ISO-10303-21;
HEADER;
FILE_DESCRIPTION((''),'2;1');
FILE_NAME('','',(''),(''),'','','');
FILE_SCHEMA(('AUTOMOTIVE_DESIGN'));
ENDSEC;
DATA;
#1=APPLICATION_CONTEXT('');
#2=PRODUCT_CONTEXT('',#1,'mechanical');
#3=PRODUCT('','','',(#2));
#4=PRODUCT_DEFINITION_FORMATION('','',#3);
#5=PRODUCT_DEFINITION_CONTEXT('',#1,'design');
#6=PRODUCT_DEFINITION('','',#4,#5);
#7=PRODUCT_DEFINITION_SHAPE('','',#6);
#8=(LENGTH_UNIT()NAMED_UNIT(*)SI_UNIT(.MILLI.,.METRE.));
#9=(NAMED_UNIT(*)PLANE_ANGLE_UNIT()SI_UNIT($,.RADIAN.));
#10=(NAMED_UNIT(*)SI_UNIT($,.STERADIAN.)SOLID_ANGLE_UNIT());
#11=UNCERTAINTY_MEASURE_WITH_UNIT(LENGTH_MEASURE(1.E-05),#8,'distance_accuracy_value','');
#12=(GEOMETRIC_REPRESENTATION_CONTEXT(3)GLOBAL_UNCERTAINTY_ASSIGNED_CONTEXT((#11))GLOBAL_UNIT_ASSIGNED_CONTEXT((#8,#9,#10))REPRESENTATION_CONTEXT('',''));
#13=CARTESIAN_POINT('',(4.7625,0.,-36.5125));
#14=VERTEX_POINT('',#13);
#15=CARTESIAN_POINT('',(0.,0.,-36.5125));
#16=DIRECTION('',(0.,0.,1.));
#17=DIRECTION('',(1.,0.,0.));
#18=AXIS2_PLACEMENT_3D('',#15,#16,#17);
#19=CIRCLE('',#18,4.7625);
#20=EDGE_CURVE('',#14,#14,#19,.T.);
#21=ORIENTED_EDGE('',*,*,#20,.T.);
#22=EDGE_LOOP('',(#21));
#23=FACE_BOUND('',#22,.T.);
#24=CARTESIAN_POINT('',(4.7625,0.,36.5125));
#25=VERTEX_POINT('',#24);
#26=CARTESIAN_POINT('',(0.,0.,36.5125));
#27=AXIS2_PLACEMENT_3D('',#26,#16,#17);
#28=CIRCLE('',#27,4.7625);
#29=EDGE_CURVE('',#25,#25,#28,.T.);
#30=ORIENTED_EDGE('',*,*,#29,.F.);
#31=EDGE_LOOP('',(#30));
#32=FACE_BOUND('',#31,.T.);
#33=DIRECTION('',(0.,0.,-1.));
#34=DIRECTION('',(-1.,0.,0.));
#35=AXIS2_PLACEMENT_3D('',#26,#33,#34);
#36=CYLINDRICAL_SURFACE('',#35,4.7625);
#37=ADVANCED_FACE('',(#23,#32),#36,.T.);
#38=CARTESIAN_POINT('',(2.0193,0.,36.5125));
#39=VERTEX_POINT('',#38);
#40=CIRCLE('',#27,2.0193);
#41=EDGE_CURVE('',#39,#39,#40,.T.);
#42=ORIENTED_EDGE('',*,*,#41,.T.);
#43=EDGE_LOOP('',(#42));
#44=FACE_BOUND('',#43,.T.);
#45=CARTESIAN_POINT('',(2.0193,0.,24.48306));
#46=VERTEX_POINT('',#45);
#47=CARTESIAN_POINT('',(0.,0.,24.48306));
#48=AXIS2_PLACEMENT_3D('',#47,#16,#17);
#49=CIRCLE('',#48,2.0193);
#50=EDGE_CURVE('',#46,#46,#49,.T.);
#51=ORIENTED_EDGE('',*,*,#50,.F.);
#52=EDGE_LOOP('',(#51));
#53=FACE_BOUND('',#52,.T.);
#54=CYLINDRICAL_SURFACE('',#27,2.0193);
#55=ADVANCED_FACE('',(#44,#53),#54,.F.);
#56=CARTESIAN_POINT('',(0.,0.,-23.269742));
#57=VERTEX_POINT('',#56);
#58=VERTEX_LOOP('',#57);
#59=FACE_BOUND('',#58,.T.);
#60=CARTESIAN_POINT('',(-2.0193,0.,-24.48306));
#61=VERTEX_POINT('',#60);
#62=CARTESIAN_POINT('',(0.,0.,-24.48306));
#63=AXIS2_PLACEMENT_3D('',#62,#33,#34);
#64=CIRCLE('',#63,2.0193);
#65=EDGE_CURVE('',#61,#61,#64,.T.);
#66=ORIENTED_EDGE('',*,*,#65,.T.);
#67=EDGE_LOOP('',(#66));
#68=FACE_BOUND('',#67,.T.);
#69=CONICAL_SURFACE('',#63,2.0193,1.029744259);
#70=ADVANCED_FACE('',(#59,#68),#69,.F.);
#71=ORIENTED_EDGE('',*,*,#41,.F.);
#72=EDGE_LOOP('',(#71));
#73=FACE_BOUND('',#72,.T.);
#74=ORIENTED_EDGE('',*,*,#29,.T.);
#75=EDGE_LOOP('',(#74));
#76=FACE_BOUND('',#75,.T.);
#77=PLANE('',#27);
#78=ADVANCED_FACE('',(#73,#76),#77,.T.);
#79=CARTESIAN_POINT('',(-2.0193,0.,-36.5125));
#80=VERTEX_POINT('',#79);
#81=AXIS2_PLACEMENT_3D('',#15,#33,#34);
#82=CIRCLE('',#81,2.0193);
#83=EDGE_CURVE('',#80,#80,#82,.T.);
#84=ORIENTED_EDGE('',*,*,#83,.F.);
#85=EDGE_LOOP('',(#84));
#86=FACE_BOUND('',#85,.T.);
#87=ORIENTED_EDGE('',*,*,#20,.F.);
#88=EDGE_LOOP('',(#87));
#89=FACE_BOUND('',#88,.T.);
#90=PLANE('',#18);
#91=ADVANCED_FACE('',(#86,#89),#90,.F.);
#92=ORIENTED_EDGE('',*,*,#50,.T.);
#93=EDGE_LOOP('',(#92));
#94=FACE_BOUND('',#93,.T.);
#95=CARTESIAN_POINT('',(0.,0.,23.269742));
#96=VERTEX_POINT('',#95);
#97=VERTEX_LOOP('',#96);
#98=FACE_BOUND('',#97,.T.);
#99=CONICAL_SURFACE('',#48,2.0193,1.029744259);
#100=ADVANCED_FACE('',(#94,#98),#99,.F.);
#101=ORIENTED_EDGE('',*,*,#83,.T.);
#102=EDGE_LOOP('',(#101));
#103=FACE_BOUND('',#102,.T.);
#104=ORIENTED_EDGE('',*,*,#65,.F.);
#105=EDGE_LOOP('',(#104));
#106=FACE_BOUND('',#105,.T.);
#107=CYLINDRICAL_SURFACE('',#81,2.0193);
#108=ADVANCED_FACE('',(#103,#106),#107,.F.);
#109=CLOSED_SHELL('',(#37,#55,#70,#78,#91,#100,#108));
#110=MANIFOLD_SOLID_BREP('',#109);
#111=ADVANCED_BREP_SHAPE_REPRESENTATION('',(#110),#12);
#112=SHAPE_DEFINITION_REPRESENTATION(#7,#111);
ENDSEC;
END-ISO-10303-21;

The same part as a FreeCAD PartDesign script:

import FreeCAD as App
import Part
import Sketcher
Q = App.Units.Quantity

doc = App.newDocument("Part")
body = doc.addObject("PartDesign::Body", "Body")

# Sketch on XY plane
sketch1 = body.newObject("Sketcher::SketchObject", "Sketch")
sketch1.AttachmentSupport = (doc.getObject("XY_Plane"), [""])
sketch1.MapMode = "FlatFace"
sketch1.addGeometry(Part.Circle(App.Vector(0, 0, 0), App.Vector(0, 0, 1), 4.8), False)
sketch1.addConstraint([
    Sketcher.Constraint("Coincident", 0, 3, -1, 1),
    Sketcher.Constraint("Diameter", 0, Q("0.375 in")),
])
pad1 = body.newObject("PartDesign::Pad", "Pad")
pad1.Profile = sketch1
pad1.Length = Q("2.875 in")
pad1.Midplane = True

# Sketch on XY plane
sketch2 = body.newObject("Sketcher::SketchObject", "Sketch001")
sketch2.AttachmentSupport = (doc.getObject("XY_Plane"), [""])
sketch2.MapMode = "FlatFace"
sketch2.AttachmentOffset = App.Placement(App.Vector(0, 0, -1.4375 * 25.4), App.Rotation())
sketch2.addGeometry(Part.Circle(App.Vector(0, 0, 0), App.Vector(0, 0, 1), 2), False)
sketch2.addConstraint([
    Sketcher.Constraint("Coincident", 0, 3, -1, 1),
    Sketcher.Constraint("Diameter", 0, Q("0.159 in")),
])
doc.recompute()
hole = body.newObject("PartDesign::Hole", "Hole")
hole.Profile = sketch2
hole.ThreadType = "None"
hole.Diameter = Q("0.159 in")
hole.DepthType = "Dimension"
hole.Depth = Q("0.4736 in")
hole.DrillPoint = "Angled"
hole.DrillPointAngle = 118
hole.Reversed = True

# Sketch on XY plane
sketch3 = body.newObject("Sketcher::SketchObject", "Sketch002")
sketch3.AttachmentSupport = (doc.getObject("XY_Plane"), [""])
sketch3.MapMode = "FlatFace"
sketch3.AttachmentOffset = App.Placement(App.Vector(0, 0, 1.4375 * 25.4), App.Rotation())
sketch3.addGeometry(Part.Circle(App.Vector(0, 0, 0), App.Vector(0, 0, 1), 2), False)
sketch3.addConstraint([
    Sketcher.Constraint("Coincident", 0, 3, -1, 1),
    Sketcher.Constraint("Diameter", 0, Q("0.159 in")),
])
doc.recompute()
hole2 = body.newObject("PartDesign::Hole", "Hole001")
hole2.Profile = sketch3
hole2.ThreadType = "None"
hole2.Diameter = Q("0.159 in")
hole2.DepthType = "Dimension"
hole2.Depth = Q("0.4736 in")
hole2.DrillPoint = "Angled"
hole2.DrillPointAngle = 118

doc.recompute()
